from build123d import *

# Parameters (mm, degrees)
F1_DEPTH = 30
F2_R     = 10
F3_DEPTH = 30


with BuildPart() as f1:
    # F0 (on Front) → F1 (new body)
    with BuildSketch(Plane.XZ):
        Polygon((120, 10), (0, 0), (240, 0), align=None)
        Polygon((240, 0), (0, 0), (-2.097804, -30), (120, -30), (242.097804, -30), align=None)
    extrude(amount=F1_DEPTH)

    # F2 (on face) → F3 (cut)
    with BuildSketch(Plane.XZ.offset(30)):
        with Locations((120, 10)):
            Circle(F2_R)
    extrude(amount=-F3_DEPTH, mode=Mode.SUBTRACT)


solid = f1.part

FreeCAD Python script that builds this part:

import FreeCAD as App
import Part
import Sketcher
Q = App.Units.Quantity

doc = App.newDocument("Part")
body = doc.addObject("PartDesign::Body", "Body")

# Sketch on XZ plane
sketch1 = body.newObject("Sketcher::SketchObject", "Sketch")
sketch1.AttachmentSupport = (doc.getObject("XZ_Plane"), [""])
sketch1.MapMode = "FlatFace"
sketch1.addGeometry(Part.LineSegment(App.Vector(120, 10, 0), App.Vector(0, 0, 0)), False)
sketch1.addGeometry(Part.LineSegment(App.Vector(0, 0, 0), App.Vector(-2, -30, 0)), False)
sketch1.addGeometry(Part.LineSegment(App.Vector(-2, -30, 0), App.Vector(242, -30, 0)), False)
sketch1.addGeometry(Part.LineSegment(App.Vector(242, -30, 0), App.Vector(240, 0, 0)), False)
sketch1.addGeometry(Part.LineSegment(App.Vector(240, 0, 0), App.Vector(120, 10, 0)), False)
sketch1.addConstraint(Sketcher.Constraint("Coincident", 0, 2, 1, 1))
sketch1.addConstraint(Sketcher.Constraint("Coincident", 1, 2, 2, 1))
sketch1.addConstraint(Sketcher.Constraint("Coincident", 2, 2, 3, 1))
sketch1.addConstraint(Sketcher.Constraint("Coincident", 3, 2, 4, 1))
sketch1.addConstraint(Sketcher.Constraint("Coincident", 4, 2, 0, 1))
sketch1.addConstraint(Sketcher.Constraint("Horizontal", 2))
sketch1.addConstraint(Sketcher.Constraint("Coincident", 0, 2, -1, 1))
sketch1.addConstraint(Sketcher.Constraint("PointOnObject", 3, 2, -1))
sketch1.addConstraint(Sketcher.Constraint("Equal", 1, 3))
sketch1.addConstraint(Sketcher.Constraint("Equal", 0, 4))
sketch1.addConstraint(Sketcher.Constraint("Angle", 1, Q("-93.999999 deg")))
sketch1.addConstraint(Sketcher.Constraint("DistanceY", 1, 2, -1, 1, 30.0))
sketch1.addConstraint(Sketcher.Constraint("DistanceX", -1, 1, 3, 2, 240.0))
sketch1.addConstraint(Sketcher.Constraint("DistanceY", -1, 1, 4, 2, 10.0))
pad1 = body.newObject("PartDesign::Pad", "Pad")
pad1.Profile = sketch1
pad1.Length = 30

# Sketch on XZ plane
sketch2 = body.newObject("Sketcher::SketchObject", "Sketch001")
sketch2.AttachmentSupport = (doc.getObject("XZ_Plane"), [""])
sketch2.MapMode = "FlatFace"
sketch2.AttachmentOffset = App.Placement(App.Vector(0, 0, 30), App.Rotation())
sketch2.addGeometry(Part.Circle(App.Vector(120, 10, 0), App.Vector(0, 0, 1), 10), False)
sketch2.addConstraint(Sketcher.Constraint("Diameter", 0, 20.0))
sketch2.addConstraint(Sketcher.Constraint("DistanceX", -1, 1, 0, 3, 120.0))
sketch2.addConstraint(Sketcher.Constraint("DistanceY", -1, 1, 0, 3, 10.0))
pocket1 = body.newObject("PartDesign::Pocket", "Pocket")
pocket1.Profile = sketch2
pocket1.Length = 30

doc.recompute()
